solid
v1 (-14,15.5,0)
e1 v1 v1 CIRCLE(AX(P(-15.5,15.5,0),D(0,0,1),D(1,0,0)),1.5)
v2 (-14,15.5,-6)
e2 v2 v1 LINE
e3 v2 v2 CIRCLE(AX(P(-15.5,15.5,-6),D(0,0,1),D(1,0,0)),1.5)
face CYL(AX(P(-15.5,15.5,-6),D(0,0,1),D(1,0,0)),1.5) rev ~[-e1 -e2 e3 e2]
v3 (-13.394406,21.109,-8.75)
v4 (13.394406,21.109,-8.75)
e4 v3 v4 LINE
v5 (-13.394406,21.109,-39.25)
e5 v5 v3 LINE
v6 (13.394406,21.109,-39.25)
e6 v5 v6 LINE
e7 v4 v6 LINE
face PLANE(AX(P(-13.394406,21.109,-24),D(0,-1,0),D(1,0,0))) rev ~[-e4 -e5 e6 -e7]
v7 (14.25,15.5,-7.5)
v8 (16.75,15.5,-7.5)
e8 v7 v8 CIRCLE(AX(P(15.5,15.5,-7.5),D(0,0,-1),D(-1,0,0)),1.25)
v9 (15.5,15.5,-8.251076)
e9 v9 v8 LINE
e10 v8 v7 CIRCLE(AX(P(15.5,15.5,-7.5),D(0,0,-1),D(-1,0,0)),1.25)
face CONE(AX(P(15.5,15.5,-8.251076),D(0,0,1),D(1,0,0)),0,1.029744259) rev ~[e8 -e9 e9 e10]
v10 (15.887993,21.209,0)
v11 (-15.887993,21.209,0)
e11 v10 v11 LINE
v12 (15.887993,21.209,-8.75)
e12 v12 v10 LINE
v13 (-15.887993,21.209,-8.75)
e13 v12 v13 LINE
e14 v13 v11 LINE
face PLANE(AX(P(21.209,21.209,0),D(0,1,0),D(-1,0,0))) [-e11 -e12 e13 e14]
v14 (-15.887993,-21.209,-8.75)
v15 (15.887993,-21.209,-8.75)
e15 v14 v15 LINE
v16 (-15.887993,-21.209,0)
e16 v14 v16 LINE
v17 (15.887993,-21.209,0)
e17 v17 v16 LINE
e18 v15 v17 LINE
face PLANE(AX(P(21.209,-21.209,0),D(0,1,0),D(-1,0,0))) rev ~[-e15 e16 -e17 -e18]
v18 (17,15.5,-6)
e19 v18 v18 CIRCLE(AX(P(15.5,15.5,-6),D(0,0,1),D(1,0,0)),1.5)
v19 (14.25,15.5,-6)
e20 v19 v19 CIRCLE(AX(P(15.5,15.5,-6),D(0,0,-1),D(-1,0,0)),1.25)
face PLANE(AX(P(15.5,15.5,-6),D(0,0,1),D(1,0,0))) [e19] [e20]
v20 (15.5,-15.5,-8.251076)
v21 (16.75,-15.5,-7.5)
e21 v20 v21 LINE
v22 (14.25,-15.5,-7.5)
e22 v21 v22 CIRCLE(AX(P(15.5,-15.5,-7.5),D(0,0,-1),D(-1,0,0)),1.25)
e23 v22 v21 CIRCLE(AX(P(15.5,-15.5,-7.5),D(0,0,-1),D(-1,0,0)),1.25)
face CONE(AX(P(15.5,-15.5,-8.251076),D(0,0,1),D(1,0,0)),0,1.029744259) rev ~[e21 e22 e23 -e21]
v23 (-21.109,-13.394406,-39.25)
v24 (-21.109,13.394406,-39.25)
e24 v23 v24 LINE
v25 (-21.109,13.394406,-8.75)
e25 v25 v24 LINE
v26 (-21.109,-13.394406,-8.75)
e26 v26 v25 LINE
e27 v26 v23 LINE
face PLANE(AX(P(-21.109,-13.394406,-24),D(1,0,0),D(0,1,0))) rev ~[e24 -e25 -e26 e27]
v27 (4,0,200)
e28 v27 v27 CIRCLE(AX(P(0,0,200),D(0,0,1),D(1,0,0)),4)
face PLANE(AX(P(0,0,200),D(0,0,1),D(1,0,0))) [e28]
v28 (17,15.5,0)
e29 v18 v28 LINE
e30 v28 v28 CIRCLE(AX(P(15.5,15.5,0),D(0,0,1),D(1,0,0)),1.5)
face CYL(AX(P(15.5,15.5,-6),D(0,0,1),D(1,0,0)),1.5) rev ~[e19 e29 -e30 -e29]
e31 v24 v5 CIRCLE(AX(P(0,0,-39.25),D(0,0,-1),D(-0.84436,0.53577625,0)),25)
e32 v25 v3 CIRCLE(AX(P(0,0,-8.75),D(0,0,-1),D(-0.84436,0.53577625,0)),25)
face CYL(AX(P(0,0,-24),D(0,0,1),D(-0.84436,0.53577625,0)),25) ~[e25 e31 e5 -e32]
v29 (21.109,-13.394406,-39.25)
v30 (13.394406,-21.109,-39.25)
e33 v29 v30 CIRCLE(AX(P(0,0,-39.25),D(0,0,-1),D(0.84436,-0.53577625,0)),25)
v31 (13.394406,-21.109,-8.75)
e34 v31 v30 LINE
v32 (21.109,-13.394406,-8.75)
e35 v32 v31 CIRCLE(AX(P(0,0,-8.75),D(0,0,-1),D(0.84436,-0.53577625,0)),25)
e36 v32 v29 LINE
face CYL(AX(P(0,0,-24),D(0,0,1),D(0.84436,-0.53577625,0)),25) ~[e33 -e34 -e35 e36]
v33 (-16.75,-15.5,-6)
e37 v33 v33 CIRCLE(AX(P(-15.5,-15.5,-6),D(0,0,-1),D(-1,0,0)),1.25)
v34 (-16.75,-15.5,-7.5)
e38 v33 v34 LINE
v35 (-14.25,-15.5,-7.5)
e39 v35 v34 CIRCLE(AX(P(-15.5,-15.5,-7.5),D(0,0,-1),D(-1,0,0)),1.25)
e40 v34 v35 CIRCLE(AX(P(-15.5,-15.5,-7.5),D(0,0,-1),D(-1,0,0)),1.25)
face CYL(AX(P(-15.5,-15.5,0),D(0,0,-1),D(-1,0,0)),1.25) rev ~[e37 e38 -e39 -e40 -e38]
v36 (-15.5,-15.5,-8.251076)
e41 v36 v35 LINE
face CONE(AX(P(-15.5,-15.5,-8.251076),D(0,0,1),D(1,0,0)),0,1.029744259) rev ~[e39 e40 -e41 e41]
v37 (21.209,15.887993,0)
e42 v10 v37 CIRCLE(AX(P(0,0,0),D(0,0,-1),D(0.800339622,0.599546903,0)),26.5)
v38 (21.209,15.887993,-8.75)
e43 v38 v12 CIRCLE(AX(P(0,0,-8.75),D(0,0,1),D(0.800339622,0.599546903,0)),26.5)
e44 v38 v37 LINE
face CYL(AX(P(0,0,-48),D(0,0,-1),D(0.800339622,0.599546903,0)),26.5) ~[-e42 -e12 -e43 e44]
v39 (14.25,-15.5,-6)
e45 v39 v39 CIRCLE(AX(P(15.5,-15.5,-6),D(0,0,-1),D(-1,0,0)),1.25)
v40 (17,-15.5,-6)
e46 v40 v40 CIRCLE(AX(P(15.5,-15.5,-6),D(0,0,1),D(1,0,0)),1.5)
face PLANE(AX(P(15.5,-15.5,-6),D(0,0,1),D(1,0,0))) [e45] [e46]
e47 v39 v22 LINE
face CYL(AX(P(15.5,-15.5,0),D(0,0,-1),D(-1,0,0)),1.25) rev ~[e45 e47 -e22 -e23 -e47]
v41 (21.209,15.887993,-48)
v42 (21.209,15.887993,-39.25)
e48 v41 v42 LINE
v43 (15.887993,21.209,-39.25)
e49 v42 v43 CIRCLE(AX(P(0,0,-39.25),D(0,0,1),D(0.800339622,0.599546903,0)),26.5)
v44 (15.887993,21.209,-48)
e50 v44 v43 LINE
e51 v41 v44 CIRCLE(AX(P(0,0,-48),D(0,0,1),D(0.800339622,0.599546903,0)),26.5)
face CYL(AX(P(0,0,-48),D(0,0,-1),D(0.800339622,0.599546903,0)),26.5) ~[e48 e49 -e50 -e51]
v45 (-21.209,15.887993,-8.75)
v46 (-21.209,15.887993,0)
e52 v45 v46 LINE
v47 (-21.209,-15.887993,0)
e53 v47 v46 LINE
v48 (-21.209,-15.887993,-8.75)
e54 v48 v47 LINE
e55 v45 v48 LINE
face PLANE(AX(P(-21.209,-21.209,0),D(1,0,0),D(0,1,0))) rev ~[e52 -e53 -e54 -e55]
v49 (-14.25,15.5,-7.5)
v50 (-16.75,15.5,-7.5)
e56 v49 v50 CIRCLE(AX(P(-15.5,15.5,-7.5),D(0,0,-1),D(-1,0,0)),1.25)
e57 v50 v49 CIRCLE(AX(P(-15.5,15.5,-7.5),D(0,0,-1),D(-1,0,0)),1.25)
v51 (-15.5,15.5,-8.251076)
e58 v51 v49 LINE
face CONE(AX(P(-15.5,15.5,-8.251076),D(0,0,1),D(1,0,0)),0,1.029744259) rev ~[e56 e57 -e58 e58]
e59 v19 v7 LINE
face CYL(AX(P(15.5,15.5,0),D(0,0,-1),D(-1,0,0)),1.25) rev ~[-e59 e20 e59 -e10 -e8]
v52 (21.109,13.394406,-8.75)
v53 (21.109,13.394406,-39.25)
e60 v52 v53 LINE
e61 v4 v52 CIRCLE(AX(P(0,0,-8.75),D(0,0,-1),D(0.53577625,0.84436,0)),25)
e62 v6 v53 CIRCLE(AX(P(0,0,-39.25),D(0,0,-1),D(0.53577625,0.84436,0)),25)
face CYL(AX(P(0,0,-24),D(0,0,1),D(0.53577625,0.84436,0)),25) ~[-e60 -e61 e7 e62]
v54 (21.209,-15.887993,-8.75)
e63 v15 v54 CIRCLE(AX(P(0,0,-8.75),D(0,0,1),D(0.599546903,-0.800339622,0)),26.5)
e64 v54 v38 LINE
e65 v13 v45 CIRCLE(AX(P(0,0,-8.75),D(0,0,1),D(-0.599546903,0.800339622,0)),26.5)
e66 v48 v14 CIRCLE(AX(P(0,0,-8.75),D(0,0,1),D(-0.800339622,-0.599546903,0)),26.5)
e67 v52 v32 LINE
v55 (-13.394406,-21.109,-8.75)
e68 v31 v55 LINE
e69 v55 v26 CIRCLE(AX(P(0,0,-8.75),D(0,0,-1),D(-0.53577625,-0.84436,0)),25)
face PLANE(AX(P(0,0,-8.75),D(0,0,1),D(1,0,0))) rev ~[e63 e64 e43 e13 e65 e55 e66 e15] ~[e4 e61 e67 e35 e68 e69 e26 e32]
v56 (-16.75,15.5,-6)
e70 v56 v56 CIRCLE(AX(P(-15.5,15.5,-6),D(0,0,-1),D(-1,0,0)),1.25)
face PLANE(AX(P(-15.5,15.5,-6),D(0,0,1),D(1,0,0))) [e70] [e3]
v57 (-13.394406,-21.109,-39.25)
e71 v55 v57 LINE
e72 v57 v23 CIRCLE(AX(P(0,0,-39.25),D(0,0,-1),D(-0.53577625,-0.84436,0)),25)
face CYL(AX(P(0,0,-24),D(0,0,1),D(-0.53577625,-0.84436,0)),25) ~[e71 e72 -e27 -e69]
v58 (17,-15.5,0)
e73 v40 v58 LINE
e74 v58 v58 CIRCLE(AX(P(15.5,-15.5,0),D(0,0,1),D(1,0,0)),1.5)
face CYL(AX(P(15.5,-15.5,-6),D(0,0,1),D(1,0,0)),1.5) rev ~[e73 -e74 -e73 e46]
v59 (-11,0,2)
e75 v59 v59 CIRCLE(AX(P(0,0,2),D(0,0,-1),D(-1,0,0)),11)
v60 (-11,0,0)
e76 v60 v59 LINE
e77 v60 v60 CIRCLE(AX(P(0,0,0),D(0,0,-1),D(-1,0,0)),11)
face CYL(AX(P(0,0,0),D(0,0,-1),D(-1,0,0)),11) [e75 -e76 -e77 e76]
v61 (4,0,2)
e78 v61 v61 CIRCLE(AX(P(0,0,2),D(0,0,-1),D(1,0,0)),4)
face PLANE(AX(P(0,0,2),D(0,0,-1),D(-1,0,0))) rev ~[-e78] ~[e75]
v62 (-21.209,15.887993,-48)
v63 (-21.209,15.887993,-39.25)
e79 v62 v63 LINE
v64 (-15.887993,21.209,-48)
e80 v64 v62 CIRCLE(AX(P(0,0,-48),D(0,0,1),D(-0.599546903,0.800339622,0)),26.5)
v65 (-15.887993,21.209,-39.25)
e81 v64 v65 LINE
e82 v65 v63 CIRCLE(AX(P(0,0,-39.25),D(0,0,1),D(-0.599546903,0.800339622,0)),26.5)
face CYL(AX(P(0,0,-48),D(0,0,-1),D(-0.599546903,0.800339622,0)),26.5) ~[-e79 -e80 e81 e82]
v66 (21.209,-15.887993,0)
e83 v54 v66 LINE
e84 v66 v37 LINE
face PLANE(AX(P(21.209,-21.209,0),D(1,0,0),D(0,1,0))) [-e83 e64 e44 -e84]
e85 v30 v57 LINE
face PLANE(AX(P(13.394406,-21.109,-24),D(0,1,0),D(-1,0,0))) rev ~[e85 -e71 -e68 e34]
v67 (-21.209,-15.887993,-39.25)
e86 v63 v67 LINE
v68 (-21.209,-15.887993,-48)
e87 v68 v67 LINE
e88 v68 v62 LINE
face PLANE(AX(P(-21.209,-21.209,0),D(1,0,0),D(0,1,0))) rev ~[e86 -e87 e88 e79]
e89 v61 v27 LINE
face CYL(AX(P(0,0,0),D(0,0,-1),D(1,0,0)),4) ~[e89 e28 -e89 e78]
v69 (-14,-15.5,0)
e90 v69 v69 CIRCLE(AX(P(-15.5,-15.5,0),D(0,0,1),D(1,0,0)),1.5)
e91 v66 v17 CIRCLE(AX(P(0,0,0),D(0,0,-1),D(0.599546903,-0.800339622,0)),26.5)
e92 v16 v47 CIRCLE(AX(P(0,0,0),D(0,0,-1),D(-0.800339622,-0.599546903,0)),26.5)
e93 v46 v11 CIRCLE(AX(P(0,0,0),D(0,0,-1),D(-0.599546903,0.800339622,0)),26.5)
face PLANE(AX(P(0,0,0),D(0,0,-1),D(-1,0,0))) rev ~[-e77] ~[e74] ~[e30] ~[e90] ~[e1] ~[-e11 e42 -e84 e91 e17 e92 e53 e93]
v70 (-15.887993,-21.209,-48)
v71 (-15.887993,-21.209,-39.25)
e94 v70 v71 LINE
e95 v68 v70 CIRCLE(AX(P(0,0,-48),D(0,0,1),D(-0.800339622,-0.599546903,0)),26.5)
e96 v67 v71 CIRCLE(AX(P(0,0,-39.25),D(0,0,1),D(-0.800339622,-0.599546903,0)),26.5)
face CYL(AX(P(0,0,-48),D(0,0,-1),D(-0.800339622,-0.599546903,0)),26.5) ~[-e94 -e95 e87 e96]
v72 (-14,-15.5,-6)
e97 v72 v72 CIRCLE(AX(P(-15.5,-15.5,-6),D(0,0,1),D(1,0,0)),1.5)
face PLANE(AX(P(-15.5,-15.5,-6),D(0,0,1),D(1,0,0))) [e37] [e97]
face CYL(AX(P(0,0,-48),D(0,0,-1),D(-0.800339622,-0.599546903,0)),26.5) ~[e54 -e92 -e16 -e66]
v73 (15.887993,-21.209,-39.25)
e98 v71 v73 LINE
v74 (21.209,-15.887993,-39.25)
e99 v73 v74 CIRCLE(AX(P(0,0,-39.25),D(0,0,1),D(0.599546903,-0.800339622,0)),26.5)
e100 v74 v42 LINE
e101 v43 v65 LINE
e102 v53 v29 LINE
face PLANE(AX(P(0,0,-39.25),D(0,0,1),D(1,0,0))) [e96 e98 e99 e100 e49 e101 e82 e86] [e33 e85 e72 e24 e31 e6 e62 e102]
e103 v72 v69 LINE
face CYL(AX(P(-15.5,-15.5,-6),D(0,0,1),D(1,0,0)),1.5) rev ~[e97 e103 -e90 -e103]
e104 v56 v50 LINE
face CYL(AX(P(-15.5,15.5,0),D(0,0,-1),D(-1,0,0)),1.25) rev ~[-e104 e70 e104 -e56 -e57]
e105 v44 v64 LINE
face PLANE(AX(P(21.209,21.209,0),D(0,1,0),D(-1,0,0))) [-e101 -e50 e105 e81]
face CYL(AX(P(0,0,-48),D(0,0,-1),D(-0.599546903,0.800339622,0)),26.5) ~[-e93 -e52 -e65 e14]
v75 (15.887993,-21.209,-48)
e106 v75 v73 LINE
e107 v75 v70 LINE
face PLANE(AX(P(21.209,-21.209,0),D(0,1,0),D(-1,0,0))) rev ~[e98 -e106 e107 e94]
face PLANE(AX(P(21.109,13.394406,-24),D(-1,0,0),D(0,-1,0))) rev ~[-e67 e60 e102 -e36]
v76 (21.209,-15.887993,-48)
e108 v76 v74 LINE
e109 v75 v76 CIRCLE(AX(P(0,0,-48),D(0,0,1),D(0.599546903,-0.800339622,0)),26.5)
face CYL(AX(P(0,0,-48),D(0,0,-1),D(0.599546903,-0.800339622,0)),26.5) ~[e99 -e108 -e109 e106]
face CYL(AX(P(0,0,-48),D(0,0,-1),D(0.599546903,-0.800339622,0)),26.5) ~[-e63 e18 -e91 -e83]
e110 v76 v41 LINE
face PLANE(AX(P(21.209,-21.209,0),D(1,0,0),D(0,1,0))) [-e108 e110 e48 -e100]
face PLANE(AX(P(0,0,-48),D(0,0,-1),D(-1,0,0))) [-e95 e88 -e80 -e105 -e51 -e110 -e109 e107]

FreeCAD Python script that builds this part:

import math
import FreeCAD as App
import Part
import Sketcher
Q = App.Units.Quantity

doc = App.newDocument("Part")
body = doc.addObject("PartDesign::Body", "Body")

# Sketch on XY plane
sketch1 = body.newObject("Sketcher::SketchObject", "Sketch")
sketch1.AttachmentSupport = (doc.getObject("XY_Plane"), [""])
sketch1.MapMode = "FlatFace"
sketch1.addGeometry(Part.Circle(App.Vector(0, 0, 0), App.Vector(0, 0, 1), 4), False)
sketch1.addConstraint([
    Sketcher.Constraint("Coincident", 0, 3, -1, 1),
    Sketcher.Constraint("Diameter", 0, Q("8 mm")),
])
pad1 = body.newObject("PartDesign::Pad", "Pad")
pad1.Profile = sketch1
pad1.Length = 200

# Sketch on XY plane
sketch2 = body.newObject("Sketcher::SketchObject", "Sketch001")
sketch2.AttachmentSupport = (doc.getObject("XY_Plane"), [""])
sketch2.MapMode = "FlatFace"
sketch2.addGeometry(Part.Circle(App.Vector(0, 0, 0), App.Vector(0, 0, 1), 11), False)
sketch2.addConstraint([
    Sketcher.Constraint("Coincident", 0, 3, -1, 1),
    Sketcher.Constraint("Diameter", 0, Q("22 mm")),
])
pad2 = body.newObject("PartDesign::Pad", "Pad001")
pad2.Profile = sketch2
pad2.Length = 2

# Sketch on XY plane
sketch3 = body.newObject("Sketcher::SketchObject", "Sketch002")
sketch3.AttachmentSupport = (doc.getObject("XY_Plane"), [""])
sketch3.MapMode = "FlatFace"
sketch3.addGeometry([
    Part.LineSegment(App.Vector(21, 21, 0), App.Vector(21, -21, 0)),
    Part.LineSegment(App.Vector(21, -21, 0), App.Vector(-21, -21, 0)),
    Part.LineSegment(App.Vector(-21, -21, 0), App.Vector(-21, 21, 0)),
    Part.LineSegment(App.Vector(-21, 21, 0), App.Vector(21, 21, 0)),
], False)
sketch3.addConstraint([
    Sketcher.Constraint("Coincident", 0, 2, 1, 1),
    Sketcher.Constraint("Coincident", 1, 2, 2, 1),
    Sketcher.Constraint("Coincident", 2, 2, 3, 1),
    Sketcher.Constraint("Coincident", 3, 2, 0, 1),
    Sketcher.Constraint("Vertical", 0),
    Sketcher.Constraint("Horizontal", 1),
    Sketcher.Constraint("Vertical", 2),
    Sketcher.Constraint("Horizontal", 3),
    Sketcher.Constraint("Symmetric", 0, 2, 2, 2, -1, 1),
    Sketcher.Constraint("Equal", 3, 0),
    Sketcher.Constraint("DistanceX", 1, 2, 1, 1, Q("42.418 mm")),
])
pad3 = body.newObject("PartDesign::Pad", "Pad002")
pad3.Profile = sketch3
pad3.Length = 48
pad3.Reversed = True

# Sketch on XY plane
sketch4 = body.newObject("Sketcher::SketchObject", "Sketch003")
sketch4.AttachmentSupport = (doc.getObject("XY_Plane"), [""])
sketch4.MapMode = "FlatFace"
sketch4.AttachmentOffset = App.Placement(App.Vector(0, 0, -48), App.Rotation())
sketch4.addGeometry([
    Part.LineSegment(App.Vector(21, -16, 0), App.Vector(21, -21, 0)),  # 0
    Part.LineSegment(App.Vector(21, -21, 0), App.Vector(16, -21, 0)),  # 1
    Part.ArcOfCircle(Part.Circle(App.Vector(0, 0, 0), App.Vector(0, 0, 1), 27), math.radians(-53.16), math.radians(-36.84)),  # 2
    Part.LineSegment(App.Vector(-16, -21, 0), App.Vector(-21, -21, 0)),  # 3
    Part.LineSegment(App.Vector(-21, -21, 0), App.Vector(-21, -16, 0)),  # 4
    Part.ArcOfCircle(Part.Circle(App.Vector(0, 0, 0), App.Vector(0, 0, 1), 27), math.radians(-143.16), math.radians(-126.84)),  # 5
    Part.LineSegment(App.Vector(-21, 16, 0), App.Vector(-21, 21, 0)),  # 6
    Part.LineSegment(App.Vector(-21, 21, 0), App.Vector(-16, 21, 0)),  # 7
    Part.ArcOfCircle(Part.Circle(App.Vector(0, 0, 0), App.Vector(0, 0, 1), 27), math.radians(126.84), math.radians(143.16)),  # 8
    Part.LineSegment(App.Vector(16, 21, 0), App.Vector(21, 21, 0)),  # 9
    Part.LineSegment(App.Vector(21, 21, 0), App.Vector(21, 16, 0)),  # 10
    Part.ArcOfCircle(Part.Circle(App.Vector(0, 0, 0), App.Vector(0, 0, 1), 27), math.radians(36.84), math.radians(53.16)),  # 11
], False)
sketch4.addConstraint([
    Sketcher.Constraint("Coincident", 0, 2, 1, 1),
    Sketcher.Constraint("Coincident", 1, 2, 2, 1),
    Sketcher.Constraint("Coincident", 2, 2, 0, 1),
    Sketcher.Constraint("Coincident", 3, 2, 4, 1),
    Sketcher.Constraint("Coincident", 4, 2, 5, 1),
    Sketcher.Constraint("Coincident", 5, 2, 3, 1),
    Sketcher.Constraint("Coincident", 6, 2, 7, 1),
    Sketcher.Constraint("Coincident", 7, 2, 8, 1),
    Sketcher.Constraint("Coincident", 8, 2, 6, 1),
    Sketcher.Constraint("Coincident", 9, 2, 10, 1),
    Sketcher.Constraint("Coincident", 10, 2, 11, 1),
    Sketcher.Constraint("Coincident", 11, 2, 9, 1),
    Sketcher.Constraint("Vertical", 0),
    Sketcher.Constraint("Horizontal", 1),
    Sketcher.Constraint("Horizontal", 3),
    Sketcher.Constraint("Vertical", 4),
    Sketcher.Constraint("Vertical", 6),
    Sketcher.Constraint("Horizontal", 7),
    Sketcher.Constraint("Horizontal", 9),
    Sketcher.Constraint("Vertical", 10),
    Sketcher.Constraint("Coincident", 2, 3, -1, 1),
    Sketcher.Constraint("Coincident", 5, 3, -1, 1),
    Sketcher.Constraint("Coincident", 8, 3, -1, 1),
    Sketcher.Constraint("Coincident", 11, 3, -1, 1),
    Sketcher.Constraint("Equal", 2, 5),
    Sketcher.Constraint("Equal", 5, 8),
    Sketcher.Constraint("Equal", 8, 11),
    Sketcher.Constraint("Symmetric", 0, 2, 6, 2, -1, 1),
    Sketcher.Constraint("Symmetric", 3, 2, 9, 2, -1, 1),
    Sketcher.Constraint("Symmetric", 0, 2, 3, 2, -2),
    Sketcher.Constraint("Equal", 9, 0),
    Sketcher.Constraint("Radius", 2, Q("26.5 mm")),
    Sketcher.Constraint("DistanceX", -1, 1, 0, 2, Q("21.209 mm")),
])
pocket1 = body.newObject("PartDesign::Pocket", "Pocket")
pocket1.Profile = sketch4
pocket1.Type = "ThroughAll"
pocket1.Reversed = True

# Sketch on XY plane
sketch5 = body.newObject("Sketcher::SketchObject", "Sketch004")
sketch5.AttachmentSupport = (doc.getObject("XY_Plane"), [""])
sketch5.MapMode = "FlatFace"
sketch5.addGeometry([
    Part.Circle(App.Vector(-15.5, 15.5, 0), App.Vector(0, 0, 1), 1.2),
    Part.Circle(App.Vector(-15.5, -15.5, 0), App.Vector(0, 0, 1), 1.2),
    Part.Circle(App.Vector(15.5, -15.5, 0), App.Vector(0, 0, 1), 1.2),
    Part.Circle(App.Vector(15.5, 15.5, 0), App.Vector(0, 0, 1), 1.2),
], False)
sketch5.addConstraint([
    Sketcher.Constraint("Equal", 0, 1),
    Sketcher.Constraint("Equal", 1, 2),
    Sketcher.Constraint("Equal", 2, 3),
    Sketcher.Constraint("Symmetric", 0, 3, 2, 3, -1, 1),
    Sketcher.Constraint("Symmetric", 1, 3, 3, 3, -1, 1),
    Sketcher.Constraint("Symmetric", 1, 3, 2, 3, -2),
    Sketcher.Constraint("Diameter", 0, Q("2.5 mm")),
    Sketcher.Constraint("DistanceY", 1, 3, 0, 3, Q("31 mm")),
    Sketcher.Constraint("DistanceX", 1, 3, 2, 3, Q("31 mm")),
])
doc.recompute()
hole = body.newObject("PartDesign::Hole", "Hole")
hole.Profile = sketch5
hole.ThreadType = "None"
hole.Diameter = 2.5
hole.DepthType = "Dimension"
hole.Depth = 7.5
hole.DrillPoint = "Angled"
hole.DrillPointAngle = 118
hole.HoleCutType = "Counterbore"
hole.HoleCutDiameter = 3
hole.HoleCutDepth = 6

# Sketch on XY plane
sketch6 = body.newObject("Sketcher::SketchObject", "Sketch005")
sketch6.AttachmentSupport = (doc.getObject("XY_Plane"), [""])
sketch6.MapMode = "FlatFace"
sketch6.AttachmentOffset = App.Placement(App.Vector(0, 0, -24), App.Rotation())
sketch6.addGeometry([
    Part.LineSegment(App.Vector(16, 21, 0), App.Vector(-16, 21, 0)),  # 0
    Part.ArcOfCircle(Part.Circle(App.Vector(0, 0, 0), App.Vector(0, 0, 1), 27), math.radians(126.84), math.radians(143.16)),  # 1
    Part.LineSegment(App.Vector(-21, 16, 0), App.Vector(-21, -16, 0)),  # 2
    Part.ArcOfCircle(Part.Circle(App.Vector(0, 0, 0), App.Vector(0, 0, 1), 27), math.radians(-143.16), math.radians(-126.84)),  # 3
    Part.LineSegment(App.Vector(-16, -21, 0), App.Vector(16, -21, 0)),  # 4
    Part.ArcOfCircle(Part.Circle(App.Vector(0, 0, 0), App.Vector(0, 0, 1), 27), math.radians(-53.16), math.radians(-36.84)),  # 5
    Part.LineSegment(App.Vector(21, -16, 0), App.Vector(21, 16, 0)),  # 6
    Part.ArcOfCircle(Part.Circle(App.Vector(0, 0, 0), App.Vector(0, 0, 1), 27), math.radians(36.84), math.radians(53.16)),  # 7
    Part.ArcOfCircle(Part.Circle(App.Vector(0, 0, 0), App.Vector(0, 0, 1), 25), math.radians(122), math.radians(148)),  # 8
    Part.LineSegment(App.Vector(-13, 21, 0), App.Vector(13, 21, 0)),  # 9
    Part.ArcOfCircle(Part.Circle(App.Vector(0, 0, 0), App.Vector(0, 0, 1), 25), math.radians(32), math.radians(58)),  # 10
    Part.LineSegment(App.Vector(21, 13, 0), App.Vector(21, -13, 0)),  # 11
    Part.ArcOfCircle(Part.Circle(App.Vector(0, 0, 0), App.Vector(0, 0, 1), 25), math.radians(-58), math.radians(-32)),  # 12
    Part.LineSegment(App.Vector(13, -21, 0), App.Vector(-13, -21, 0)),  # 13
    Part.ArcOfCircle(Part.Circle(App.Vector(0, 0, 0), App.Vector(0, 0, 1), 25), math.radians(-148), math.radians(-122)),  # 14
    Part.LineSegment(App.Vector(-21, -13, 0), App.Vector(-21, 13, 0)),  # 15
], False)
sketch6.addConstraint([
    Sketcher.Constraint("Coincident", 0, 2, 1, 1),
    Sketcher.Constraint("Coincident", 1, 2, 2, 1),
    Sketcher.Constraint("Coincident", 2, 2, 3, 1),
    Sketcher.Constraint("Coincident", 3, 2, 4, 1),
    Sketcher.Constraint("Coincident", 4, 2, 5, 1),
    Sketcher.Constraint("Coincident", 5, 2, 6, 1),
    Sketcher.Constraint("Coincident", 6, 2, 7, 1),
    Sketcher.Constraint("Coincident", 7, 2, 0, 1),
    Sketcher.Constraint("Coincident", 8, 1, 9, 1),
    Sketcher.Constraint("Coincident", 9, 2, 10, 2),
    Sketcher.Constraint("Coincident", 10, 1, 11, 1),
    Sketcher.Constraint("Coincident", 11, 2, 12, 2),
    Sketcher.Constraint("Coincident", 12, 1, 13, 1),
    Sketcher.Constraint("Coincident", 13, 2, 14, 2),
    Sketcher.Constraint("Coincident", 14, 1, 15, 1),
    Sketcher.Constraint("Coincident", 15, 2, 8, 2),
    Sketcher.Constraint("Horizontal", 0),
    Sketcher.Constraint("Vertical", 2),
    Sketcher.Constraint("Horizontal", 4),
    Sketcher.Constraint("Vertical", 6),
    Sketcher.Constraint("Horizontal", 9),
    Sketcher.Constraint("Vertical", 11),
    Sketcher.Constraint("Horizontal", 13),
    Sketcher.Constraint("Vertical", 15),
    Sketcher.Constraint("Coincident", 1, 3, -1, 1),
    Sketcher.Constraint("Coincident", 3, 3, -1, 1),
    Sketcher.Constraint("Coincident", 5, 3, -1, 1),
    Sketcher.Constraint("Coincident", 7, 3, -1, 1),
    Sketcher.Constraint("Coincident", 8, 3, -1, 1),
    Sketcher.Constraint("Coincident", 10, 3, -1, 1),
    Sketcher.Constraint("Coincident", 12, 3, -1, 1),
    Sketcher.Constraint("Coincident", 14, 3, -1, 1),
    Sketcher.Constraint("Equal", 1, 3),
    Sketcher.Constraint("Equal", 3, 5),
    Sketcher.Constraint("Equal", 5, 7),
    Sketcher.Constraint("Equal", 8, 10),
    Sketcher.Constraint("Equal", 10, 12),
    Sketcher.Constraint("Equal", 12, 14),
    Sketcher.Constraint("Horizontal", 2, 2, 5, 2),
    Sketcher.Constraint("Horizontal", 11, 2, 14, 1),
    Sketcher.Constraint("Vertical", 0, 2, 3, 2),
    Sketcher.Constraint("Vertical", 9, 2, 12, 1),
    Sketcher.Constraint("Equal", 4, 2),
    Sketcher.Constraint("Equal", 13, 11),
    Sketcher.Constraint("Radius", 8, Q("25 mm")),
    Sketcher.Constraint("Radius", 1, Q("26.5 mm")),
    Sketcher.Constraint("DistanceY", 8, 1, 0, 2, Q("0.1 mm")),
    Sketcher.Constraint("DistanceY", -1, 1, 0, 2, Q("21.209 mm")),
])
pocket2 = body.newObject("PartDesign::Pocket", "Pocket001")
pocket2.Profile = sketch6
pocket2.Length = 30.5
pocket2.Midplane = True

doc.recompute()
